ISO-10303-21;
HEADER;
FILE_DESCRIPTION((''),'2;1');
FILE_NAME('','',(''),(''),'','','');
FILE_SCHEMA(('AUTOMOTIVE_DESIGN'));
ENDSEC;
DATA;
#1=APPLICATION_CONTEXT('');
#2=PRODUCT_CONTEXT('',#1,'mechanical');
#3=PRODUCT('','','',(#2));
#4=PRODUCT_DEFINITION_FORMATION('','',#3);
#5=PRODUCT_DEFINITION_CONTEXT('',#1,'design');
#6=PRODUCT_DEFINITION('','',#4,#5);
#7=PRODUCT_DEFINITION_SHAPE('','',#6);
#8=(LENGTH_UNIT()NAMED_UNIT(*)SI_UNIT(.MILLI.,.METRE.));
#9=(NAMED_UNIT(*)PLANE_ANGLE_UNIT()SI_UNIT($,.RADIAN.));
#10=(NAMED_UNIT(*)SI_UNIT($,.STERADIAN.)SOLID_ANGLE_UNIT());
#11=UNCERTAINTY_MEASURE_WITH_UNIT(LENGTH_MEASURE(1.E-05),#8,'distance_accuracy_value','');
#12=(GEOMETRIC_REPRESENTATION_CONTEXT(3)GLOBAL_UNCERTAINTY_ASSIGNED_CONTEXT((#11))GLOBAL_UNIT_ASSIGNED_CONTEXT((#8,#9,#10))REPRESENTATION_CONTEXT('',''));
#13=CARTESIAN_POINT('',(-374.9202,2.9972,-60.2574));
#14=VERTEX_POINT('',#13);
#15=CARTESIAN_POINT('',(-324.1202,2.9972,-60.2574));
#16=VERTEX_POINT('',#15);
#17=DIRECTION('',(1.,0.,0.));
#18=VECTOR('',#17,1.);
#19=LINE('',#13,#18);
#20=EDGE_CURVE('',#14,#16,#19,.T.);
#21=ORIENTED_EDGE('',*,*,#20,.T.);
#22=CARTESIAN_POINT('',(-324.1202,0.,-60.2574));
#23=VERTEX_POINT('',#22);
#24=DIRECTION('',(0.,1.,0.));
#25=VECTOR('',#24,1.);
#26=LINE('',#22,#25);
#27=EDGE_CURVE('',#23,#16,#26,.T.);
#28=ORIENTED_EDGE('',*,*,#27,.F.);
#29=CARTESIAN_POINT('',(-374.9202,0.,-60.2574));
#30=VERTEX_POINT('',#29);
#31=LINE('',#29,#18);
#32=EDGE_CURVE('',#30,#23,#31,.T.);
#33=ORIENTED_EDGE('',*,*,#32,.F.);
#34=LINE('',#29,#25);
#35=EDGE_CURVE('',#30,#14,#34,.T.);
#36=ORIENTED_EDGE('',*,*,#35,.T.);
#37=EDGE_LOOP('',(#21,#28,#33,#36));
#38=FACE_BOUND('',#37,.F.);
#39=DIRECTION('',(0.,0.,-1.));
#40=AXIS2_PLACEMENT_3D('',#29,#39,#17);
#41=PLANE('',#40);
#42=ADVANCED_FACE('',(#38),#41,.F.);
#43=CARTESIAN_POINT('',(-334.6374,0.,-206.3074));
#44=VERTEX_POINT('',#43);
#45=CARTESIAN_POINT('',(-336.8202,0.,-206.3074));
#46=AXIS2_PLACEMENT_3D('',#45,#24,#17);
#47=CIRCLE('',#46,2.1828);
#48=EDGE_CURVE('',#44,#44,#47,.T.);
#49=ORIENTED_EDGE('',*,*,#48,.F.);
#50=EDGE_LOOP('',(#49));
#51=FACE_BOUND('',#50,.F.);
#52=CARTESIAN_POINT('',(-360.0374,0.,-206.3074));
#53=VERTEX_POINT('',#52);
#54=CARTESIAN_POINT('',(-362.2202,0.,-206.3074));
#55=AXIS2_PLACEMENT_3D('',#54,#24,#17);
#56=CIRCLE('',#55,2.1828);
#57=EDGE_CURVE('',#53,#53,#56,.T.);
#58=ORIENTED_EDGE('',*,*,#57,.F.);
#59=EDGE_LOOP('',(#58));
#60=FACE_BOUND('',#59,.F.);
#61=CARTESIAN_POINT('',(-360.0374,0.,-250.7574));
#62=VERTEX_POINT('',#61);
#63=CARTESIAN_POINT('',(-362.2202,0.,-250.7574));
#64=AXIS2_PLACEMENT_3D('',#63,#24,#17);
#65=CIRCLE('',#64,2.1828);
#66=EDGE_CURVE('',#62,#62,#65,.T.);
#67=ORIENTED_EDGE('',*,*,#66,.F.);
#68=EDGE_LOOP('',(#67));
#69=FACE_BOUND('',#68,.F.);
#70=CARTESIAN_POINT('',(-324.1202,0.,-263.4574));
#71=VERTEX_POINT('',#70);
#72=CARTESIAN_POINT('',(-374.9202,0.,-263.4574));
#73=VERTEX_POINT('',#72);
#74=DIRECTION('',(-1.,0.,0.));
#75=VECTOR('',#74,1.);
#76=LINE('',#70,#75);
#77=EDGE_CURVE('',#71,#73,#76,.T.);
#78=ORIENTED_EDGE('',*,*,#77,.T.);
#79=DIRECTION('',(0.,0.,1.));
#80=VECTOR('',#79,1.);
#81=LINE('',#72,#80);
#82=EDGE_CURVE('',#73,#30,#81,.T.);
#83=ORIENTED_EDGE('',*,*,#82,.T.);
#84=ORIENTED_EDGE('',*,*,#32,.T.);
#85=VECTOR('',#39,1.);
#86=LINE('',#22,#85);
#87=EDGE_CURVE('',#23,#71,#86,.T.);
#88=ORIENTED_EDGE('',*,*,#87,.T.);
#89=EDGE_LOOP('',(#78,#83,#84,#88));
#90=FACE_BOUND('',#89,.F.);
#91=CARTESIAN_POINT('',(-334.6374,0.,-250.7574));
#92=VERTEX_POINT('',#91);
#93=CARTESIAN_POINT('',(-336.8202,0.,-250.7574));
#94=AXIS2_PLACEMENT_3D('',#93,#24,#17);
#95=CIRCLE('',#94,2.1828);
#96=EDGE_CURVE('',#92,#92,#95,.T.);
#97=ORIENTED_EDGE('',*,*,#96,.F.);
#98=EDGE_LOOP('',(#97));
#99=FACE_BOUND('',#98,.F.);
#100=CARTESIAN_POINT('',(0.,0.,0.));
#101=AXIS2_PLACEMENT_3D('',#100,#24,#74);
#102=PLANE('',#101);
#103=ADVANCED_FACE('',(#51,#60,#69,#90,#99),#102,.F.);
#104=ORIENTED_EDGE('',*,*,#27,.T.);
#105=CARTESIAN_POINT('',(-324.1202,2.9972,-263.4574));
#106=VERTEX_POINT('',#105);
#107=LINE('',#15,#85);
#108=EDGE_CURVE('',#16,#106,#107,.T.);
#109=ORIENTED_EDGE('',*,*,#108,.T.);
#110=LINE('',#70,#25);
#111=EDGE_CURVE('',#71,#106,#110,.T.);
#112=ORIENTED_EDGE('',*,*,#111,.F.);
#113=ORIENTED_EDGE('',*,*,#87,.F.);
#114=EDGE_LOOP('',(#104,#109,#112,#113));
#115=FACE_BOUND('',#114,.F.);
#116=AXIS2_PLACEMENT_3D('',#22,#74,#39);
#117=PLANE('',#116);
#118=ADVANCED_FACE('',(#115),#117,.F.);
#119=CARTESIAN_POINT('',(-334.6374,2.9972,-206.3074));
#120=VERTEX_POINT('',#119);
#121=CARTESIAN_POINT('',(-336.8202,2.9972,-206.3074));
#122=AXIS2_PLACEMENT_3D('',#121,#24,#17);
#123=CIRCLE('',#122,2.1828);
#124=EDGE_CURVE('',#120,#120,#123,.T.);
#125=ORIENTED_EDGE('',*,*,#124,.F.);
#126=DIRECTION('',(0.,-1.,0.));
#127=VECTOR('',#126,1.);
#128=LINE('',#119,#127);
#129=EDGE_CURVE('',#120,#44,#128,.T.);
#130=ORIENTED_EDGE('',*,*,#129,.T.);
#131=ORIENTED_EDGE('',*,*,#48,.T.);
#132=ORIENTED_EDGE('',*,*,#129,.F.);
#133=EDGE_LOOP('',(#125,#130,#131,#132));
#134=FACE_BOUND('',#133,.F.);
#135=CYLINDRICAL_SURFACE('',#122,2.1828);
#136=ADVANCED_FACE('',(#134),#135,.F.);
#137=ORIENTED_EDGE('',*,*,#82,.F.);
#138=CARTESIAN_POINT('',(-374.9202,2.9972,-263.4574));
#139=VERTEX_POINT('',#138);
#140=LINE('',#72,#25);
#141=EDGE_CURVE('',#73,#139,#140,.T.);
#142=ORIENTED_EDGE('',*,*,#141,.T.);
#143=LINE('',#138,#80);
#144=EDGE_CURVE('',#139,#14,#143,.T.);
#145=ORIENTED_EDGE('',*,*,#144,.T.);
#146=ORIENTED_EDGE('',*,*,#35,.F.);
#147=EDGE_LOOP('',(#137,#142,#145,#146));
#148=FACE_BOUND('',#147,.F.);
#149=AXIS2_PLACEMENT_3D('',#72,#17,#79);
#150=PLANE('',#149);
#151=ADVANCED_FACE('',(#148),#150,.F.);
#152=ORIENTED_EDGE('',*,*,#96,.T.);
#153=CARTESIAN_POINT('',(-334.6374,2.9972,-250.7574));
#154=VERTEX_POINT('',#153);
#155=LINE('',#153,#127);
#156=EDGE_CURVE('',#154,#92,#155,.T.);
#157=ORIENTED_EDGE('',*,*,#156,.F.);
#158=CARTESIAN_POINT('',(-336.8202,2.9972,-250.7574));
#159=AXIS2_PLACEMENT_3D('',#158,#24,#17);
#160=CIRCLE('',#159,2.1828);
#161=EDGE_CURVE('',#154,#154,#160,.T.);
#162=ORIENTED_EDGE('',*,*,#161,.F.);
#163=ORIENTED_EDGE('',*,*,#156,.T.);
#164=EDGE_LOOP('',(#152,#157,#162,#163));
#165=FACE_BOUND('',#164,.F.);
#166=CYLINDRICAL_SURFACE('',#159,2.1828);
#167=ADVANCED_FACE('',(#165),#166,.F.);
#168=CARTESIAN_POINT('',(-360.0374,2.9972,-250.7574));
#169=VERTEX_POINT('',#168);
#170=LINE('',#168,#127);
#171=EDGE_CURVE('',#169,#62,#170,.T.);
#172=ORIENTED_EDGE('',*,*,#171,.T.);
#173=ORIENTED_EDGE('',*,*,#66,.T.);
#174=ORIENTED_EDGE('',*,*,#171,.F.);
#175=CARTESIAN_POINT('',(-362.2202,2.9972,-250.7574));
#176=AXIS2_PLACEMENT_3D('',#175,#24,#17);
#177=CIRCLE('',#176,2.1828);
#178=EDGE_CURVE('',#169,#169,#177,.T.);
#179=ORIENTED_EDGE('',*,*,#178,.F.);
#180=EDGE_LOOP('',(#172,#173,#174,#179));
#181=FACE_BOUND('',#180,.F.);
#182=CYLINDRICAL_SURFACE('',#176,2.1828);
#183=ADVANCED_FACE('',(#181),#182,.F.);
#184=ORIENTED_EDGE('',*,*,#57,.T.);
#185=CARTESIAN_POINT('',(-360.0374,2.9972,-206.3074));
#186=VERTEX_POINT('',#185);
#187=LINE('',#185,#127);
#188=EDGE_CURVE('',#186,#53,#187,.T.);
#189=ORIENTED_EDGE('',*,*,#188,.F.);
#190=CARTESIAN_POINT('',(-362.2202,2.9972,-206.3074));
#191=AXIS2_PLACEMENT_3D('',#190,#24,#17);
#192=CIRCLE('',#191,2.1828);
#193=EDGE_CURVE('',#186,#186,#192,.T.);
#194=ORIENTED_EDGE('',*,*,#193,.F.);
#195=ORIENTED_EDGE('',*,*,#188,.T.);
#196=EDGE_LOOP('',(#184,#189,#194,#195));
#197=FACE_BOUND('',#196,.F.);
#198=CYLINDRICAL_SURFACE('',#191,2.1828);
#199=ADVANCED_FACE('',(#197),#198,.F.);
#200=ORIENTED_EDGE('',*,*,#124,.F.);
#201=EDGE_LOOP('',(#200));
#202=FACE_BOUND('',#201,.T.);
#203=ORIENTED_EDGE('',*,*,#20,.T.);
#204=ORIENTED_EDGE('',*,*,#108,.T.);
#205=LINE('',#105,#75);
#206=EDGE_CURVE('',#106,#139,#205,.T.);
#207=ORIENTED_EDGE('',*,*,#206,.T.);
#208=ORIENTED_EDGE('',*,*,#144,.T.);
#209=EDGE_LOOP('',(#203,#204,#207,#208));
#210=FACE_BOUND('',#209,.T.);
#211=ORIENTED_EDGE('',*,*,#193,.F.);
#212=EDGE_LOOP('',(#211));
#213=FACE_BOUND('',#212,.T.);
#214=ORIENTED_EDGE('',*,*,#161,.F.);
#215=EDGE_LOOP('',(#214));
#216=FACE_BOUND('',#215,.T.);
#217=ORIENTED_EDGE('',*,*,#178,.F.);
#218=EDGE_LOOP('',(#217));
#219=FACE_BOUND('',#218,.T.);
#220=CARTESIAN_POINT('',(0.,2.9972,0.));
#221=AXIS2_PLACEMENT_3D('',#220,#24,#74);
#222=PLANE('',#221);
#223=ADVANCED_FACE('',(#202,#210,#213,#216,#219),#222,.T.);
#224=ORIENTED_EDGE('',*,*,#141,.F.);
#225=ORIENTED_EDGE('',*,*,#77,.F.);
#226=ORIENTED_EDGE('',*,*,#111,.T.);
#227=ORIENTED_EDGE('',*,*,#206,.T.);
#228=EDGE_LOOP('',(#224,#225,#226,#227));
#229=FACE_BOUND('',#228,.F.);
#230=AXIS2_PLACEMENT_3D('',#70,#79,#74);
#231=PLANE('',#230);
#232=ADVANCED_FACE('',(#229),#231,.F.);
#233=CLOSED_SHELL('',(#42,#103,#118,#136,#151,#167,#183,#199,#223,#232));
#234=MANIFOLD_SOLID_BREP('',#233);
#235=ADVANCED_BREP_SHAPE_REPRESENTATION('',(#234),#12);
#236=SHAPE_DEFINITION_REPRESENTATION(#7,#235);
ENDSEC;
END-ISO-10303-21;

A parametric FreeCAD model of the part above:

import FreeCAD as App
import Part
import Sketcher
Q = App.Units.Quantity


def add_polygon(sketch, points):
    """Adds a closed chain of lines whose ends are joined by coincident constraints."""
    first, n = sketch.GeometryCount, len(points)
    for a, b in zip(points, points[1:] + points[:1]):
        sketch.addGeometry(Part.LineSegment(App.Vector(*a, 0), App.Vector(*b, 0)), False)
    for i in range(n):
        sketch.addConstraint(Sketcher.Constraint("Coincident", first + i, 2, first + (i + 1) % n, 1))

doc = App.newDocument("Part")
body = doc.addObject("PartDesign::Body", "Body")

sketch1 = body.newObject("Sketcher::SketchObject", "Sketch")
sketch1.AttachmentSupport = (doc.getObject("XZ_Plane"), [""])
sketch1.MapMode = "FlatFace"
add_polygon(sketch1, [(-375, -263), (-375, -60), (-324, -60), (-324, -263)])
sketch1.addConstraint([
    Sketcher.Constraint("Vertical", 0),
    Sketcher.Constraint("Horizontal", 1),
    Sketcher.Constraint("Vertical", 2),
    Sketcher.Constraint("Horizontal", 3),
    Sketcher.Constraint("DistanceX", 1, 1, 1, 2, Q("2 in")),
    Sketcher.Constraint("DistanceY", 0, 1, 0, 2, Q("8 in")),
    Sketcher.Constraint("DistanceX", 0, 2, -1, 1, Q("374.9202 mm")),
    Sketcher.Constraint("DistanceY", 0, 2, -1, 1, Q("60.2574 mm")),
])
pad1 = body.newObject("PartDesign::Pad", "Pad")
pad1.Profile = sketch1
pad1.Length = Q("0.118 in")
pad1.Reversed = True

sketch2 = body.newObject("Sketcher::SketchObject", "Sketch001")
sketch2.AttachmentSupport = (doc.getObject("XZ_Plane"), [""])
sketch2.MapMode = "FlatFace"
sketch2.AttachmentOffset = App.Placement(App.Vector(0, 0, -0.118 * 25.4), App.Rotation())
sketch2.addGeometry([
    Part.Circle(App.Vector(-362.2, -250.8, 0), App.Vector(0, 0, 1), 2.2),
    Part.Circle(App.Vector(-336.8, -250.8, 0), App.Vector(0, 0, 1), 2.2),
    Part.Circle(App.Vector(-336.8, -206.3, 0), App.Vector(0, 0, 1), 2.2),
    Part.Circle(App.Vector(-362.2, -206.3, 0), App.Vector(0, 0, 1), 2.2),
], False)
sketch2.addConstraint([
    Sketcher.Constraint("Equal", 0, 1),
    Sketcher.Constraint("Equal", 1, 2),
    Sketcher.Constraint("Equal", 2, 3),
    Sketcher.Constraint("Horizontal", 0, 3, 1, 3),
    Sketcher.Constraint("Horizontal", 2, 3, 3, 3),
    Sketcher.Constraint("Vertical", 1, 3, 2, 3),
    Sketcher.Constraint("Vertical", 0, 3, 3, 3),
    Sketcher.Constraint("Diameter", 0, Q("0.171874 in")),
    Sketcher.Constraint("DistanceX", 0, 3, 1, 3, Q("1 in")),
    Sketcher.Constraint("DistanceY", 1, 3, 2, 3, Q("1.75 in")),
    Sketcher.Constraint("DistanceX", 0, 3, -1, 1, Q("362.2202 mm")),
    Sketcher.Constraint("DistanceY", 0, 3, -1, 1, Q("250.7574 mm")),
])
pocket1 = body.newObject("PartDesign::Pocket", "Pocket")
pocket1.Profile = sketch2
pocket1.Type = "ThroughAll"
pocket1.Reversed = True

doc.recompute()
